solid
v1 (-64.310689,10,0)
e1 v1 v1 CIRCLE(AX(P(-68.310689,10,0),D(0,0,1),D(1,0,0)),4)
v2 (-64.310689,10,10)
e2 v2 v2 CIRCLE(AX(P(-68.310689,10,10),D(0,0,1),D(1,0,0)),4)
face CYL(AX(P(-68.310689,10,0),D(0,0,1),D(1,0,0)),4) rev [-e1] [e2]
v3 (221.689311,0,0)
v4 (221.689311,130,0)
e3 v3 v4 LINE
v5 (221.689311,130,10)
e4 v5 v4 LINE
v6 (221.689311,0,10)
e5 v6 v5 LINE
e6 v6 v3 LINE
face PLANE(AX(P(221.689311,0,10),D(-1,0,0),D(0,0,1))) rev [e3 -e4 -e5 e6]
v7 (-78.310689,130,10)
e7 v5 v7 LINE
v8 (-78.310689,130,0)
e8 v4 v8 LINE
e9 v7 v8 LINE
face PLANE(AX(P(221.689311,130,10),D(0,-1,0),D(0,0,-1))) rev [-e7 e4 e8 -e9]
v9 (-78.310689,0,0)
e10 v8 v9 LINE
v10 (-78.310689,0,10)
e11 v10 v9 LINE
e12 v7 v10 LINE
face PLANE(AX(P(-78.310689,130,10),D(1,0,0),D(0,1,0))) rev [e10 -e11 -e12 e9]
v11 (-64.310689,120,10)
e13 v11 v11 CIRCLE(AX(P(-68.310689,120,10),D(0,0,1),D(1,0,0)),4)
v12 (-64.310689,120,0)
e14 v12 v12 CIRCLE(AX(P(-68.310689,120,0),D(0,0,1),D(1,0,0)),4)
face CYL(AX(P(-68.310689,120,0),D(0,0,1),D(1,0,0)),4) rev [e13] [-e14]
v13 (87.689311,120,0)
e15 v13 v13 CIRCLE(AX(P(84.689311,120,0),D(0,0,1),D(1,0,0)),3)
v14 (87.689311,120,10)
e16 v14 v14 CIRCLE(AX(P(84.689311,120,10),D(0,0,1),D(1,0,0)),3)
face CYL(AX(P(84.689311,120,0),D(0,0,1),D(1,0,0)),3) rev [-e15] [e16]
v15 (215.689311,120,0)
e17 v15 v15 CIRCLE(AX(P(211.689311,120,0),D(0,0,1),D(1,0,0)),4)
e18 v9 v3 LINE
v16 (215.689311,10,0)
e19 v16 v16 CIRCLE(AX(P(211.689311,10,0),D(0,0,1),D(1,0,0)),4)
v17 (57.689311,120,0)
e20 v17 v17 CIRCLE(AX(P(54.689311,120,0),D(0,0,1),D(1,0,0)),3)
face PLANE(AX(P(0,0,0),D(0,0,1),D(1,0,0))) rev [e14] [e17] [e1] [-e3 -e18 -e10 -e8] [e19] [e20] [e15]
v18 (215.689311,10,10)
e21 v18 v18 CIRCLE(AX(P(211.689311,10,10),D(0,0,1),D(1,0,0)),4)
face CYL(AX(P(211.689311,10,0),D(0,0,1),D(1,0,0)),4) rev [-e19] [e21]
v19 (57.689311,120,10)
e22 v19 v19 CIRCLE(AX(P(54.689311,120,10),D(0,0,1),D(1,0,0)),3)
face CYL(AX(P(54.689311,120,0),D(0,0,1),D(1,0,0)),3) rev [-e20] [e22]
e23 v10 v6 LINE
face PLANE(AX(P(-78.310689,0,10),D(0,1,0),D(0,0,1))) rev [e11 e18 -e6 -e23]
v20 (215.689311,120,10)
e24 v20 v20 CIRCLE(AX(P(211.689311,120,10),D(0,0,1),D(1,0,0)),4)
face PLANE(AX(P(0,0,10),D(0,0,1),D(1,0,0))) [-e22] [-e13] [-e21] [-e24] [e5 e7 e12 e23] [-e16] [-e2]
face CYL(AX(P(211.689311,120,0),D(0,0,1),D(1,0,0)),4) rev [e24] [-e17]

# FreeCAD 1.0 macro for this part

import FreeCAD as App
import Part
import Sketcher

doc = App.newDocument("Part")
body = doc.addObject("PartDesign::Body", "Body")

# Sketch on XY plane
sketch1 = doc.addObject("Sketcher::SketchObject", "Sketch")
body.addObject(sketch1)
sketch1.AttachmentSupport = (doc.XY_Plane, [""])
sketch1.MapMode = "FlatFace"
sketch1.addGeometry(Part.LineSegment(App.Vector(-78.310689, 130, 0), App.Vector(-78.310689, 0, 0)), False)
sketch1.addGeometry(Part.LineSegment(App.Vector(-78.310689, 0, 0), App.Vector(221.689311, 0, 0)), False)
sketch1.addGeometry(Part.LineSegment(App.Vector(221.689311, 0, 0), App.Vector(221.689311, 130, 0)), False)
sketch1.addGeometry(Part.LineSegment(App.Vector(221.689311, 130, 0), App.Vector(-78.310689, 130, 0)), False)
sketch1.addConstraint(Sketcher.Constraint("Coincident", 0, 2, 1, 1))
sketch1.addConstraint(Sketcher.Constraint("Coincident", 1, 2, 2, 1))
sketch1.addConstraint(Sketcher.Constraint("Coincident", 2, 2, 3, 1))
sketch1.addConstraint(Sketcher.Constraint("Coincident", 3, 2, 0, 1))
sketch1.addConstraint(Sketcher.Constraint("Vertical", 0))
sketch1.addConstraint(Sketcher.Constraint("Horizontal", 1))
sketch1.addConstraint(Sketcher.Constraint("Vertical", 2))
sketch1.addConstraint(Sketcher.Constraint("Horizontal", 3))
sketch1.addConstraint(Sketcher.Constraint("PointOnObject", 0, 2, -1))
sketch1.addConstraint(Sketcher.Constraint("DistanceX", 1, 1, 1, 2, 300.0))
sketch1.addConstraint(Sketcher.Constraint("DistanceY", 0, 2, 0, 1, 130.0))
sketch1.addConstraint(Sketcher.Constraint("DistanceX", 0, 2, -1, 1, 78.310689))
pad1 = doc.addObject("PartDesign::Pad", "Pad")
body.addObject(pad1)
pad1.Profile = sketch1
pad1.Length = 10

# Sketch on XY plane
sketch2 = doc.addObject("Sketcher::SketchObject", "Sketch001")
body.addObject(sketch2)
sketch2.AttachmentSupport = (doc.XY_Plane, [""])
sketch2.MapMode = "FlatFace"
sketch2.AttachmentOffset = App.Placement(App.Vector(0, 0, 10), App.Rotation())
sketch2.addGeometry(Part.Circle(App.Vector(-68.310689, 120, 0), App.Vector(0, 0, 1), 4), False)
sketch2.addGeometry(Part.Circle(App.Vector(-68.310689, 10, 0), App.Vector(0, 0, 1), 4), False)
sketch2.addGeometry(Part.Circle(App.Vector(211.689311, 10, 0), App.Vector(0, 0, 1), 4), False)
sketch2.addGeometry(Part.Circle(App.Vector(211.689311, 120, 0), App.Vector(0, 0, 1), 4), False)
sketch2.addConstraint(Sketcher.Constraint("Equal", 0, 1))
sketch2.addConstraint(Sketcher.Constraint("Equal", 1, 2))
sketch2.addConstraint(Sketcher.Constraint("Equal", 2, 3))
sketch2.addConstraint(Sketcher.Constraint("Horizontal", 1, 3, 2, 3))
sketch2.addConstraint(Sketcher.Constraint("Horizontal", 0, 3, 3, 3))
sketch2.addConstraint(Sketcher.Constraint("Vertical", 0, 3, 1, 3))
sketch2.addConstraint(Sketcher.Constraint("Vertical", 2, 3, 3, 3))
sketch2.addConstraint(Sketcher.Constraint("Diameter", 0, 8.0))
sketch2.addConstraint(Sketcher.Constraint("DistanceY", -1, 1, 0, 3, 120.0))
sketch2.addConstraint(Sketcher.Constraint("DistanceY", -1, 1, 1, 3, 10.0))
sketch2.addConstraint(Sketcher.Constraint("DistanceX", 1, 3, 2, 3, 280.0))
sketch2.addConstraint(Sketcher.Constraint("DistanceX", 0, 3, -1, 1, 68.310689))
pocket1 = doc.addObject("PartDesign::Pocket", "Pocket")
body.addObject(pocket1)
pocket1.Profile = sketch2
pocket1.Type = "ThroughAll"

# Sketch on XY plane
sketch3 = doc.addObject("Sketcher::SketchObject", "Sketch002")
body.addObject(sketch3)
sketch3.AttachmentSupport = (doc.XY_Plane, [""])
sketch3.MapMode = "FlatFace"
sketch3.AttachmentOffset = App.Placement(App.Vector(0, 0, 10), App.Rotation())
sketch3.addGeometry(Part.Circle(App.Vector(84.689311, 120, 0), App.Vector(0, 0, 1), 3), False)
sketch3.addGeometry(Part.Circle(App.Vector(54.689311, 120, 0), App.Vector(0, 0, 1), 3), False)
sketch3.addConstraint(Sketcher.Constraint("Equal", 0, 1))
sketch3.addConstraint(Sketcher.Constraint("Horizontal", 0, 3, 1, 3))
sketch3.addConstraint(Sketcher.Constraint("Diameter", 0, 6.0))
sketch3.addConstraint(Sketcher.Constraint("DistanceY", -1, 1, 0, 3, 120.0))
sketch3.addConstraint(Sketcher.Constraint("DistanceX", 1, 3, 0, 3, 30.0))
sketch3.addConstraint(Sketcher.Constraint("DistanceX", -1, 1, 0, 3, 84.689311))
pocket2 = doc.addObject("PartDesign::Pocket", "Pocket001")
body.addObject(pocket2)
pocket2.Profile = sketch3
pocket2.Type = "ThroughAll"

doc.recompute()
